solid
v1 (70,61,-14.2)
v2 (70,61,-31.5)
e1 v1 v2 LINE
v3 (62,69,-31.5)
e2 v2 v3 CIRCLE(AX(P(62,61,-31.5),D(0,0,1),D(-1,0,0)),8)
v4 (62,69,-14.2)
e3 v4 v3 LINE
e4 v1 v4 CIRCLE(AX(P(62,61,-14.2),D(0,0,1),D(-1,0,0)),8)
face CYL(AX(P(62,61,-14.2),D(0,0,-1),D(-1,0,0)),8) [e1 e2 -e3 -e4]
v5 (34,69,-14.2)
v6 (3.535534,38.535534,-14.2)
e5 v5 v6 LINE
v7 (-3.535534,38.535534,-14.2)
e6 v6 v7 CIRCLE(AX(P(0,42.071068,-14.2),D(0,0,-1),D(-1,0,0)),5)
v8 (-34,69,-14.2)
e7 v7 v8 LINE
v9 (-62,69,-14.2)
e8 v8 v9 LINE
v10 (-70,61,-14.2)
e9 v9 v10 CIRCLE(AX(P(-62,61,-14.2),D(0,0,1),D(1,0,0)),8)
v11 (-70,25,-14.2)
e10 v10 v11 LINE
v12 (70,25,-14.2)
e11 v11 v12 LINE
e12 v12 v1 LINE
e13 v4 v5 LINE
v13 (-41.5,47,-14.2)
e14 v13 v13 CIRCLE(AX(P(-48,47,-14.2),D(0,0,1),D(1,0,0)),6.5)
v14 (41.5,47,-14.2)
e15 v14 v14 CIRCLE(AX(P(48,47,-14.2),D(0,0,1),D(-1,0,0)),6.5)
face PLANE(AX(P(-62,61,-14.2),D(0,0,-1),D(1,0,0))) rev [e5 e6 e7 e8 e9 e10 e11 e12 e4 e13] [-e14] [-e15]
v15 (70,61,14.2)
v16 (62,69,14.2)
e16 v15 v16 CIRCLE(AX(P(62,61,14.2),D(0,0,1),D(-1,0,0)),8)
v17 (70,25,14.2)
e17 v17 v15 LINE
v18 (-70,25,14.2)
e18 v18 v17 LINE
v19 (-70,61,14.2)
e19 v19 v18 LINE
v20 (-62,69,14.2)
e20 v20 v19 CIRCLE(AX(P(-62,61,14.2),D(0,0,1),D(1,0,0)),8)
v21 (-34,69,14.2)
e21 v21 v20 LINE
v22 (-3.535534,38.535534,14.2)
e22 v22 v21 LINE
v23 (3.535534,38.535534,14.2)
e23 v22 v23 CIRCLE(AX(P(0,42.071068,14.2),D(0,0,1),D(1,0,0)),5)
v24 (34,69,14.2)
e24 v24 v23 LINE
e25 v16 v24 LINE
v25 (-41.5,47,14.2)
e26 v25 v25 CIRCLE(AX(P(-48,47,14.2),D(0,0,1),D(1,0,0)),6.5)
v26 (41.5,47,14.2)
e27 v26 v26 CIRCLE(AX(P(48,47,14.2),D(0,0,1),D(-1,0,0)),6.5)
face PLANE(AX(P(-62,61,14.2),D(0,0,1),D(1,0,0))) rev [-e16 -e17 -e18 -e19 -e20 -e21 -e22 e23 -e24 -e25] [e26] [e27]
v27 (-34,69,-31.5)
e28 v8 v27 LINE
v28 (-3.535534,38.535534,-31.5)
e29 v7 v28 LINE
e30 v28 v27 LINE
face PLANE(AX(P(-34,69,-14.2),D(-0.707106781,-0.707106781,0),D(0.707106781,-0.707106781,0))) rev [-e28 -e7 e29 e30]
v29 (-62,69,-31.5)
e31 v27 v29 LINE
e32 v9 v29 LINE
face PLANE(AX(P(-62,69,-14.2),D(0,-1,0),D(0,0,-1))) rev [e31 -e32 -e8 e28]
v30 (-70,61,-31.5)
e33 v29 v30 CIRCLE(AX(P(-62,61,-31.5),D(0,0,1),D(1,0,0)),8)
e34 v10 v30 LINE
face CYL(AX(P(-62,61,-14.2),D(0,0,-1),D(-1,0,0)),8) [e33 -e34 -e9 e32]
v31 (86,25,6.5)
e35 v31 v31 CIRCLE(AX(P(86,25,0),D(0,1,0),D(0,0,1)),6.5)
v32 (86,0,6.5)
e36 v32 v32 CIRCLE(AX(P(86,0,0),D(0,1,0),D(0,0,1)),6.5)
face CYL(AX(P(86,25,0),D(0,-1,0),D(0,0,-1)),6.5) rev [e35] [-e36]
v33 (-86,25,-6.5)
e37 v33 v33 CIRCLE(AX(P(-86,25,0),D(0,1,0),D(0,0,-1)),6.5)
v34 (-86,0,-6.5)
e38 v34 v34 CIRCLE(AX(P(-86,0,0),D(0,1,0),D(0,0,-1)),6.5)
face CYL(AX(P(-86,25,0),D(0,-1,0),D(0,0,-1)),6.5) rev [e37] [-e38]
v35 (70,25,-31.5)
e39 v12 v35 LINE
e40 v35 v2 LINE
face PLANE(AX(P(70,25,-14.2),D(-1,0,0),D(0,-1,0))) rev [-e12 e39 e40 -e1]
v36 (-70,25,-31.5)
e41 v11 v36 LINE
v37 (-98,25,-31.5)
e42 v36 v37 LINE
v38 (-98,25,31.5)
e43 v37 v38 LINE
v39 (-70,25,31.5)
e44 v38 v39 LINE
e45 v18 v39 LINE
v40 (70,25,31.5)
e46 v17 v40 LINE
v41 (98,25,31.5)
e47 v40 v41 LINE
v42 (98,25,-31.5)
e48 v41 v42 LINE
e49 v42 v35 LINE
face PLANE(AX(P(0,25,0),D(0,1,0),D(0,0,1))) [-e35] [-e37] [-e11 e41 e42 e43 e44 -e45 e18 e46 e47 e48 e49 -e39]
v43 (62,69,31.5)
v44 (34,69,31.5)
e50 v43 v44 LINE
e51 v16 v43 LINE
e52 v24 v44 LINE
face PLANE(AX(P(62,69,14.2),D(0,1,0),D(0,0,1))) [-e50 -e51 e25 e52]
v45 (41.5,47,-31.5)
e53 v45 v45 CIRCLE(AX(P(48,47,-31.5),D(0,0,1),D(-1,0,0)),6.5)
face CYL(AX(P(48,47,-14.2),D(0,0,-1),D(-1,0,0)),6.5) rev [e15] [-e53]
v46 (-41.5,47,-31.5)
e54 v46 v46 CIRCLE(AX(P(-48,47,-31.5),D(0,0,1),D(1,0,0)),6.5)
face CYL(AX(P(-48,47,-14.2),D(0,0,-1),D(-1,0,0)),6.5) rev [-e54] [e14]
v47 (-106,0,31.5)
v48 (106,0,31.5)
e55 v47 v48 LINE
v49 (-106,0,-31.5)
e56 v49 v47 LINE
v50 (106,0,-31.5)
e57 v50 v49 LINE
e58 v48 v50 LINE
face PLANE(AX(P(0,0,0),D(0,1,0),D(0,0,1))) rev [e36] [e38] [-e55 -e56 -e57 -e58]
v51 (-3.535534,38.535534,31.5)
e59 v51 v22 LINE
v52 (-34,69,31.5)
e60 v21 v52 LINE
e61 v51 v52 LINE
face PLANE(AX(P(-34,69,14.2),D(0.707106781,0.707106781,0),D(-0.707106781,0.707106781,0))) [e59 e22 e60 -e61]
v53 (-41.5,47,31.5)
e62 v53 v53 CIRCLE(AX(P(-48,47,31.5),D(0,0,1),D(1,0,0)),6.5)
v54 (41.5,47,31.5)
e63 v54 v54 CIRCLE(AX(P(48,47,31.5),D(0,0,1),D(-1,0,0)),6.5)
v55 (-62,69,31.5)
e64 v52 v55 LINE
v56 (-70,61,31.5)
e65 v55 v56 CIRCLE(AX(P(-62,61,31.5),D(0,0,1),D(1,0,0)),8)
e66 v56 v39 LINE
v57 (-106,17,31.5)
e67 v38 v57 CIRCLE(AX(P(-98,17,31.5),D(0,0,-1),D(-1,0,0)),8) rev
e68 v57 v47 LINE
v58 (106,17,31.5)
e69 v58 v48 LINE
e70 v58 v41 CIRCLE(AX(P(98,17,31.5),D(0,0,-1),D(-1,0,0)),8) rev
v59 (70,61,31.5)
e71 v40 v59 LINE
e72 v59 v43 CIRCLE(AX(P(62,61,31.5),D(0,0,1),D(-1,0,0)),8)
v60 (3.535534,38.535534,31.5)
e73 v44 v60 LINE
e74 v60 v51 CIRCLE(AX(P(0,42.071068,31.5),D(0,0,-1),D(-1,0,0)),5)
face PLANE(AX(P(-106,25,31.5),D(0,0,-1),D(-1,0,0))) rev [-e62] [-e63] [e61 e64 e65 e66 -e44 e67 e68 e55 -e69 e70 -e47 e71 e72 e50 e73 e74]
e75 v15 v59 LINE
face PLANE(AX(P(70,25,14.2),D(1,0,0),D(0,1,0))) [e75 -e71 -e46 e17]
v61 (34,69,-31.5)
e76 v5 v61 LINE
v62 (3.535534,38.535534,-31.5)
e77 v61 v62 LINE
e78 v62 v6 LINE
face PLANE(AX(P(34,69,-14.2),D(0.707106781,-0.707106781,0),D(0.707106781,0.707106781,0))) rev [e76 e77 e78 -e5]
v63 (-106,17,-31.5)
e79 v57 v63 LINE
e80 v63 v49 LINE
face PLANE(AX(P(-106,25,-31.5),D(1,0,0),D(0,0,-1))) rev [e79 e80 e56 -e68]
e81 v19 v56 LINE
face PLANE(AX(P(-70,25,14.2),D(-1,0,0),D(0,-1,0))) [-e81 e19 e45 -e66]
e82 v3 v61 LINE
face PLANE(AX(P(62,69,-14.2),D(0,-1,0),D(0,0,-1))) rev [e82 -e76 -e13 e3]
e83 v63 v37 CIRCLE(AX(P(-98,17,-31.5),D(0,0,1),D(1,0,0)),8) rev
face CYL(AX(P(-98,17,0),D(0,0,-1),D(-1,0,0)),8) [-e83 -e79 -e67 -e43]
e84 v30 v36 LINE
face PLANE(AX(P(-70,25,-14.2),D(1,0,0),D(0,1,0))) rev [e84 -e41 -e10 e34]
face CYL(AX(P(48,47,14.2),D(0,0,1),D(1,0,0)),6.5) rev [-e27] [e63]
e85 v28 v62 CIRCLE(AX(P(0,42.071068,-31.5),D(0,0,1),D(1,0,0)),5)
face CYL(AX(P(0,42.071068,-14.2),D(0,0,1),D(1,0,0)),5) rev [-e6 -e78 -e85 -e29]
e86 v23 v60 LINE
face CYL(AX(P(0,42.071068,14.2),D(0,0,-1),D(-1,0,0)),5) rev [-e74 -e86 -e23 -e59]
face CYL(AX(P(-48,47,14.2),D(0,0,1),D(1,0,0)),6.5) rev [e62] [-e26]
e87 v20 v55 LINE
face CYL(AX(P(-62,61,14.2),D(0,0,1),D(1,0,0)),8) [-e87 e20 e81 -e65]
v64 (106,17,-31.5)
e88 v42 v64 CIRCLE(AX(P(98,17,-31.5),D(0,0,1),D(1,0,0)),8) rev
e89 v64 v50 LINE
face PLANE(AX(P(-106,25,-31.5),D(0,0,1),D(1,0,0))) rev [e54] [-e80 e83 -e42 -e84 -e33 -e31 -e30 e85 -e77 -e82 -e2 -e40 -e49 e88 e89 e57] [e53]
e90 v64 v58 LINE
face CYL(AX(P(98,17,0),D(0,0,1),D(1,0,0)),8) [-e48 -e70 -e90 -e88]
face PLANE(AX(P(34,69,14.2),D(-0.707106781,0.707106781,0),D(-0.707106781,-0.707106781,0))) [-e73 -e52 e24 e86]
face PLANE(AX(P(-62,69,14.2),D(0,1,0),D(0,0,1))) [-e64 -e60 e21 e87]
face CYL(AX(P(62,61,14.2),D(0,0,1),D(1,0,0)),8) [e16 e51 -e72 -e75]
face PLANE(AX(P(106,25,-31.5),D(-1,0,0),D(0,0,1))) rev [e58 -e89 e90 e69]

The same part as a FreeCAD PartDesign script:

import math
import FreeCAD as App
import Part
import Sketcher
Q = App.Units.Quantity


def edges_at(feature, points):
    """Names of the edges that pass closest to the given points."""
    edges = feature.Shape.Edges
    near = lambda p: min(range(len(edges)), key=lambda i: edges[i].distToShape(Part.Vertex(*p))[0])
    return sorted({f"Edge{near(p) + 1}" for p in points})

doc = App.newDocument("Part")
body = doc.addObject("PartDesign::Body", "Body")

# Sketch on XZ plane
sketch1 = body.newObject("Sketcher::SketchObject", "Sketch")
sketch1.AttachmentSupport = (doc.getObject("XZ_Plane"), [""])
sketch1.MapMode = "FlatFace"
sketch1.addGeometry(Part.LineSegment(App.Vector(-106, -32, 0), App.Vector(-106, 32, 0)), False)
sketch1.addGeometry(Part.LineSegment(App.Vector(-106, 32, 0), App.Vector(106, 32, 0)), False)
sketch1.addGeometry(Part.LineSegment(App.Vector(106, 32, 0), App.Vector(106, -32, 0)), False)
sketch1.addGeometry(Part.LineSegment(App.Vector(106, -32, 0), App.Vector(-106, -32, 0)), False)
sketch1.addGeometry(Part.Circle(App.Vector(-86, 0, 0), App.Vector(0, 0, 1), 6), False)
sketch1.addGeometry(Part.Circle(App.Vector(86, 0, 0), App.Vector(0, 0, 1), 6), False)
sketch1.addConstraint(Sketcher.Constraint("Coincident", 0, 2, 1, 1))
sketch1.addConstraint(Sketcher.Constraint("Coincident", 1, 2, 2, 1))
sketch1.addConstraint(Sketcher.Constraint("Coincident", 2, 2, 3, 1))
sketch1.addConstraint(Sketcher.Constraint("Coincident", 3, 2, 0, 1))
sketch1.addConstraint(Sketcher.Constraint("Vertical", 0))
sketch1.addConstraint(Sketcher.Constraint("Horizontal", 1))
sketch1.addConstraint(Sketcher.Constraint("Vertical", 2))
sketch1.addConstraint(Sketcher.Constraint("Horizontal", 3))
sketch1.addConstraint(Sketcher.Constraint("Equal", 4, 5))
sketch1.addConstraint(Sketcher.Constraint("Symmetric", 4, 3, 5, 3, -1, 1))
sketch1.addConstraint(Sketcher.Constraint("Symmetric", 0, 2, 2, 2, -1, 1))
sketch1.addConstraint(Sketcher.Constraint("PointOnObject", 4, 3, -1))
sketch1.addConstraint(Sketcher.Constraint("Diameter", 4, Q("13 mm")))
sketch1.addConstraint(Sketcher.Constraint("DistanceX", 1, 1, 1, 2, Q("212 mm")))
sketch1.addConstraint(Sketcher.Constraint("DistanceY", 0, 1, 0, 2, Q("63 mm")))
sketch1.addConstraint(Sketcher.Constraint("DistanceX", 4, 3, -1, 1, Q("86 mm")))
pad1 = body.newObject("PartDesign::Pad", "Pad")
pad1.Profile = sketch1
pad1.Length = 25
pad1.Reversed = True

# Sketch on XY plane
sketch2 = body.newObject("Sketcher::SketchObject", "Sketch001")
sketch2.AttachmentSupport = (doc.getObject("XY_Plane"), [""])
sketch2.MapMode = "FlatFace"
sketch2.AttachmentOffset = App.Placement(App.Vector(0, 0, 31.5), App.Rotation())
sketch2.addGeometry(Part.LineSegment(App.Vector(-70, 25, 0), App.Vector(70, 25, 0)), False)
sketch2.addGeometry(Part.LineSegment(App.Vector(70, 25, 0), App.Vector(70, 61, 0)), False)
sketch2.addGeometry(Part.ArcOfCircle(Part.Circle(App.Vector(62, 61, 0), App.Vector(0, 0, 1), 8), math.radians(0), math.radians(90)), False)
sketch2.addGeometry(Part.LineSegment(App.Vector(62, 69, 0), App.Vector(34, 69, 0)), False)
sketch2.addGeometry(Part.LineSegment(App.Vector(34, 69, 0), App.Vector(0, 35, 0)), False)
sketch2.addGeometry(Part.LineSegment(App.Vector(0, 35, 0), App.Vector(-34, 69, 0)), False)
sketch2.addGeometry(Part.LineSegment(App.Vector(-34, 69, 0), App.Vector(-62, 69, 0)), False)
sketch2.addGeometry(Part.ArcOfCircle(Part.Circle(App.Vector(-62, 61, 0), App.Vector(0, 0, 1), 8), math.radians(90), math.radians(180)), False)
sketch2.addGeometry(Part.LineSegment(App.Vector(-70, 61, 0), App.Vector(-70, 25, 0)), False)
sketch2.addGeometry(Part.Circle(App.Vector(-48, 47, 0), App.Vector(0, 0, 1), 6), False)
sketch2.addGeometry(Part.Circle(App.Vector(48, 47, 0), App.Vector(0, 0, 1), 6), False)
sketch2.addConstraint(Sketcher.Constraint("Coincident", 0, 2, 1, 1))
sketch2.addConstraint(Sketcher.Constraint("Tangent", 1, 2, 2, 1))
sketch2.addConstraint(Sketcher.Constraint("Tangent", 2, 2, 3, 1))
sketch2.addConstraint(Sketcher.Constraint("Coincident", 3, 2, 4, 1))
sketch2.addConstraint(Sketcher.Constraint("Coincident", 4, 2, 5, 1))
sketch2.addConstraint(Sketcher.Constraint("Coincident", 5, 2, 6, 1))
sketch2.addConstraint(Sketcher.Constraint("Tangent", 6, 2, 7, 1))
sketch2.addConstraint(Sketcher.Constraint("Tangent", 7, 2, 8, 1))
sketch2.addConstraint(Sketcher.Constraint("Coincident", 8, 2, 0, 1))
sketch2.addConstraint(Sketcher.Constraint("Horizontal", 0))
sketch2.addConstraint(Sketcher.Constraint("Vertical", 1))
sketch2.addConstraint(Sketcher.Constraint("Horizontal", 3))
sketch2.addConstraint(Sketcher.Constraint("Horizontal", 6))
sketch2.addConstraint(Sketcher.Constraint("Vertical", 8))
sketch2.addConstraint(Sketcher.Constraint("Equal", 2, 7))
sketch2.addConstraint(Sketcher.Constraint("Equal", 9, 10))
sketch2.addConstraint(Sketcher.Constraint("Symmetric", 2, 3, 7, 3, -2))
sketch2.addConstraint(Sketcher.Constraint("Symmetric", 9, 3, 10, 3, -2))
sketch2.addConstraint(Sketcher.Constraint("PointOnObject", 4, 2, -2))
sketch2.addConstraint(Sketcher.Constraint("Perpendicular", 4, 5))
sketch2.addConstraint(Sketcher.Constraint("Equal", 3, 6))
sketch2.addConstraint(Sketcher.Constraint("Diameter", 9, Q("13 mm")))
sketch2.addConstraint(Sketcher.Constraint("Radius", 2, Q("8 mm")))
sketch2.addConstraint(Sketcher.Constraint("DistanceX", 0, 1, 0, 2, Q("140 mm")))
sketch2.addConstraint(Sketcher.Constraint("DistanceX", 3, 2, 3, 1, Q("28 mm")))
sketch2.addConstraint(Sketcher.Constraint("DistanceY", 1, 1, 1, 2, Q("36 mm")))
sketch2.addConstraint(Sketcher.Constraint("DistanceY", -1, 1, 2, 3, Q("61 mm")))
sketch2.addConstraint(Sketcher.Constraint("DistanceX", 9, 3, -1, 1, Q("48 mm")))
sketch2.addConstraint(Sketcher.Constraint("DistanceY", -1, 1, 9, 3, Q("47 mm")))
pad2 = body.newObject("PartDesign::Pad", "Pad001")
pad2.Profile = sketch2
pad2.Length = 17.3
pad2.Reversed = True
doc.recompute()

mirrored = body.newObject("PartDesign::Mirrored", "Mirrored")
mirrored.Originals = [pad2]
mirrored.MirrorPlane = (doc.getObject("XY_Plane"), [""])
body.Tip = mirrored
doc.recompute()

fillet = body.newObject("PartDesign::Fillet", "Fillet")
fillet.Base = (mirrored, edges_at(mirrored, [(-106, 25, 0), (106, 25, 0)]))
fillet.Radius = 8
doc.recompute()

fillet2 = body.newObject("PartDesign::Fillet", "Fillet001")
fillet2.Base = (fillet, edges_at(fillet, [(0, 35, 22.85), (0, 35, -22.85)]))
fillet2.Radius = 5

doc.recompute()
